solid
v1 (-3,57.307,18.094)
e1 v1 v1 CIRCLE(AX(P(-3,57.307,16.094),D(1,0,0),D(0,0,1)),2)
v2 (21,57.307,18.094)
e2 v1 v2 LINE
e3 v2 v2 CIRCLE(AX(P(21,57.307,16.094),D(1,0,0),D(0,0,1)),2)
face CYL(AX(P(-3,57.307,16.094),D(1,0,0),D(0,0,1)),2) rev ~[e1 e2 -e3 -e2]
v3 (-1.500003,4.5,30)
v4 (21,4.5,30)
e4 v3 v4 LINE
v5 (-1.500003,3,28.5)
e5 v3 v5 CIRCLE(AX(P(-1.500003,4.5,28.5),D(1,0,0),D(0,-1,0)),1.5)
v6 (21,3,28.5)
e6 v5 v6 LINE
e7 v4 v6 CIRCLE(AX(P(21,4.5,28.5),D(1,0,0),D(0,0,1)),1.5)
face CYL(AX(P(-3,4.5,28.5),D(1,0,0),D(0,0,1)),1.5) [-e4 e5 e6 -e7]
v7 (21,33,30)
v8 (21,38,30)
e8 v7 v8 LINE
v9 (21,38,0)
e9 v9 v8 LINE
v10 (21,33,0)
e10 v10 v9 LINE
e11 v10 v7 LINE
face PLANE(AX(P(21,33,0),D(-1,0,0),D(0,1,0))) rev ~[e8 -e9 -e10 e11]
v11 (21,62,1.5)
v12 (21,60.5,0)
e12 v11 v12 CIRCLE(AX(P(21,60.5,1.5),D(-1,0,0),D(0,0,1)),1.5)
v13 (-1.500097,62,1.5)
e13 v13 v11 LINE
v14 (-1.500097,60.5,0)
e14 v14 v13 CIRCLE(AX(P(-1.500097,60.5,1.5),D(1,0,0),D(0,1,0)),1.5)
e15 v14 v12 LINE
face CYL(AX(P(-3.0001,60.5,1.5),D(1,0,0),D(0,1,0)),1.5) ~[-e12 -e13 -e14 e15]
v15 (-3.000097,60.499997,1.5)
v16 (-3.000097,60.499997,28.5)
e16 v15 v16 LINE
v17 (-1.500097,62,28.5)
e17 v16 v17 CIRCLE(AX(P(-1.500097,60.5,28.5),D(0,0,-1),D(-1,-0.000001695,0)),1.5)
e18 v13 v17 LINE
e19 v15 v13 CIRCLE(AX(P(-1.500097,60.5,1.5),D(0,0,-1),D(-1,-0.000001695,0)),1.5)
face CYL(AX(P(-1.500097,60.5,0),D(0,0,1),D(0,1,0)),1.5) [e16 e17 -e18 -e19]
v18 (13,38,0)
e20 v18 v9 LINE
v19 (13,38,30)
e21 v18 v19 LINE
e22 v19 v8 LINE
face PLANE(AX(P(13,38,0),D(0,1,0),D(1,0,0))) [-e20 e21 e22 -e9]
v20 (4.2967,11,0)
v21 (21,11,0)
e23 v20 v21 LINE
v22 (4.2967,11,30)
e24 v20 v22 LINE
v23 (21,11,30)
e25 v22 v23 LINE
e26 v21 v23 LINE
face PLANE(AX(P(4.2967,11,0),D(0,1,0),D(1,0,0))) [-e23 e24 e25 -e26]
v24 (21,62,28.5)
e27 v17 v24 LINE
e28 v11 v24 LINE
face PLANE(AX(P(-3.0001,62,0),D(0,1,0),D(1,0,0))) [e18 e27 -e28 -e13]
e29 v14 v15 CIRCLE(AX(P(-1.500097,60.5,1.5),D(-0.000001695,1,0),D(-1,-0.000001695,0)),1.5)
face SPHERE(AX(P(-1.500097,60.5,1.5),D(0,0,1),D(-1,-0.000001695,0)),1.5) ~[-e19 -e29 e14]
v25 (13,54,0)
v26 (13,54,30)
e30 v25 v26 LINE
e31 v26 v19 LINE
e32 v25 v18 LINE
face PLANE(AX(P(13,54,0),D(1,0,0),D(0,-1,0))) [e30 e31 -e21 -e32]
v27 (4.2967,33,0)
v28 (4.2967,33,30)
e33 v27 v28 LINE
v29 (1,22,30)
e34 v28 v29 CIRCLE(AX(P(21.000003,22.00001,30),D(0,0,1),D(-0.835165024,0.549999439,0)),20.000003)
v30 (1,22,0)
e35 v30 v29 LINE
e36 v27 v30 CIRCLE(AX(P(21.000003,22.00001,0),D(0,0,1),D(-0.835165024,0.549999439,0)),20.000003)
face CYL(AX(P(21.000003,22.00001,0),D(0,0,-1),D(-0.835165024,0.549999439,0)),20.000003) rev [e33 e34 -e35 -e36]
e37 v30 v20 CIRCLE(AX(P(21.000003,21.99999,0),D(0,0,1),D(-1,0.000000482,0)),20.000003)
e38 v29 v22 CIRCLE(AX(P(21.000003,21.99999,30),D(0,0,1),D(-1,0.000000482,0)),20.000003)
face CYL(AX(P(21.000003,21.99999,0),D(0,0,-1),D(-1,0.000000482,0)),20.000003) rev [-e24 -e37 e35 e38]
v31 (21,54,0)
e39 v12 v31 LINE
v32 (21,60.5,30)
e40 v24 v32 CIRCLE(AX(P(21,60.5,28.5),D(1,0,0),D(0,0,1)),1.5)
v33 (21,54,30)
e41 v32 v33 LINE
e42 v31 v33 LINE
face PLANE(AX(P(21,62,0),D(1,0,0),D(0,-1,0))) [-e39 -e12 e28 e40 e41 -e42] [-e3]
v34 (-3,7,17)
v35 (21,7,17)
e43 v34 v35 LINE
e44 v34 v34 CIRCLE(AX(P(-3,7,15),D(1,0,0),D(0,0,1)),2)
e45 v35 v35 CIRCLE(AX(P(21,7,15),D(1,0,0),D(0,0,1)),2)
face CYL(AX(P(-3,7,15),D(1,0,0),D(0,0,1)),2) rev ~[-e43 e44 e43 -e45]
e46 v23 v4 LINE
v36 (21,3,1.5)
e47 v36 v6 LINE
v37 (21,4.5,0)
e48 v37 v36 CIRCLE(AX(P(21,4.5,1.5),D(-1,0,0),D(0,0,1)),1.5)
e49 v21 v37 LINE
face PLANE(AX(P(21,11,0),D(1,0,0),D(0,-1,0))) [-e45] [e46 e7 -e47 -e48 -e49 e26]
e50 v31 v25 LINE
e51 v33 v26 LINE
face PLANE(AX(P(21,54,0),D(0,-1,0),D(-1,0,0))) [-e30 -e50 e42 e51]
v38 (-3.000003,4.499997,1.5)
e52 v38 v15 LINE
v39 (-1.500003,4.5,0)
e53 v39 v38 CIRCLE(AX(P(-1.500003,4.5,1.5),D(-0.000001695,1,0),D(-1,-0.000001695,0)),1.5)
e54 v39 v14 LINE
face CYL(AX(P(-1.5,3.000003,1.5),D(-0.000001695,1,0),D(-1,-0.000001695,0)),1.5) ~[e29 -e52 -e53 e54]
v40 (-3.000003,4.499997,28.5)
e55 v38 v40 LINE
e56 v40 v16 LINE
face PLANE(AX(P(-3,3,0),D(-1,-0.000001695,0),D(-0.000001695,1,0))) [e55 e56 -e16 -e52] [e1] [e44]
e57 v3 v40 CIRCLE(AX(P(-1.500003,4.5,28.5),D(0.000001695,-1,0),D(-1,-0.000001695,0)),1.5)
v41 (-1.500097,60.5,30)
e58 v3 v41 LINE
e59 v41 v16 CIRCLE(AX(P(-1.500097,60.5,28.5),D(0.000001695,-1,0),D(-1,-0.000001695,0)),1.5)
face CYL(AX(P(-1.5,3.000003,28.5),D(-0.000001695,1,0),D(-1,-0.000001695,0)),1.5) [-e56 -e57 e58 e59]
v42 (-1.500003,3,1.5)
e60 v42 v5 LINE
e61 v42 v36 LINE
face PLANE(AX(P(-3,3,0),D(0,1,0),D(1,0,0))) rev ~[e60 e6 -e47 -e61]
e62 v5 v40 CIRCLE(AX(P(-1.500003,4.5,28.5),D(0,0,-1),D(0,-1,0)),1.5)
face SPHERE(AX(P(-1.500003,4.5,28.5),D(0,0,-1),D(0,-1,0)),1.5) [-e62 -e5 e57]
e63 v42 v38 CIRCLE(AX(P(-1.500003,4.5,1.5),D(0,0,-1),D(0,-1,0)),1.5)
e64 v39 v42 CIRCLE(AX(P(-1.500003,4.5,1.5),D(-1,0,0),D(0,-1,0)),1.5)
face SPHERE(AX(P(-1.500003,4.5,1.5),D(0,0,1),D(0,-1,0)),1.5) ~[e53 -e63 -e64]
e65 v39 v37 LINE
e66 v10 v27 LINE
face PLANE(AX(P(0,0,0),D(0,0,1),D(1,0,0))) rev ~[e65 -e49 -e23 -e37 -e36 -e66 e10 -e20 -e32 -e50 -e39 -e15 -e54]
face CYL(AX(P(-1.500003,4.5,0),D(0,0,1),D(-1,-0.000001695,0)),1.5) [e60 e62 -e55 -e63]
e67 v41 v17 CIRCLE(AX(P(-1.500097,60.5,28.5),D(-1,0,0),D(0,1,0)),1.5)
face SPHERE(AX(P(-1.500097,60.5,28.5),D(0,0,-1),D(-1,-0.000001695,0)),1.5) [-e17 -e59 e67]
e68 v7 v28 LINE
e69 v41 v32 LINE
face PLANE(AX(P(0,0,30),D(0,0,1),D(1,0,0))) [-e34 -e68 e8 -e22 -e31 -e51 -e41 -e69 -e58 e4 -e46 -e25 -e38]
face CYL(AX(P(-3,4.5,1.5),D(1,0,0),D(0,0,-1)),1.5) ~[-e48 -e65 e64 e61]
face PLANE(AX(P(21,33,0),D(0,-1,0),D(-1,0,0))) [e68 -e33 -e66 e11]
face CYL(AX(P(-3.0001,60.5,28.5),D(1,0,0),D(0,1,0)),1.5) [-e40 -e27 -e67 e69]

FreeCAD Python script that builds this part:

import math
import FreeCAD as App
import Part
import Sketcher
from FreeCAD import Vector
Q = App.Units.Quantity


def edges_at(feature, points):
    """Names of the edges that pass closest to the given points."""
    edges = feature.Shape.Edges
    near = lambda p: min(range(len(edges)), key=lambda i: edges[i].distToShape(Part.Vertex(*p))[0])
    return sorted({f"Edge{near(p) + 1}" for p in points})

doc = App.newDocument("Part")
body = doc.addObject("PartDesign::Body", "Body")

# Sketch on XY plane
sketch1 = body.newObject("Sketcher::SketchObject", "Sketch")
sketch1.AttachmentSupport = (doc.getObject("XY_Plane"), [""])
sketch1.MapMode = "FlatFace"
sketch1.addGeometry(Part.LineSegment(Vector(21, 62, 0), Vector(-3, 62, 0)), False)
sketch1.addGeometry(Part.LineSegment(Vector(-3, 62, 0), Vector(-3, 3, 0)), False)
sketch1.addGeometry(Part.LineSegment(Vector(-3, 3, 0), Vector(21, 3, 0)), False)
sketch1.addGeometry(Part.LineSegment(Vector(21, 3, 0), Vector(21, 11, 0)), False)
sketch1.addGeometry(Part.LineSegment(Vector(21, 11, 0), Vector(4, 11, 0)), False)
sketch1.addGeometry(Part.ArcOfCircle(Part.Circle(Vector(21, 22, 0), Vector(0, 0, 1), 20), math.radians(180), math.radians(213)), False)
sketch1.addGeometry(Part.ArcOfCircle(Part.Circle(Vector(21, 22, 0), Vector(0, 0, 1), 20), math.radians(147), math.radians(180)), False)
sketch1.addGeometry(Part.LineSegment(Vector(4, 33, 0), Vector(21, 33, 0)), False)
sketch1.addGeometry(Part.LineSegment(Vector(21, 33, 0), Vector(21, 38, 0)), False)
sketch1.addGeometry(Part.LineSegment(Vector(21, 38, 0), Vector(13, 38, 0)), False)
sketch1.addGeometry(Part.LineSegment(Vector(13, 38, 0), Vector(13, 54, 0)), False)
sketch1.addGeometry(Part.LineSegment(Vector(13, 54, 0), Vector(21, 54, 0)), False)
sketch1.addGeometry(Part.LineSegment(Vector(21, 54, 0), Vector(21, 62, 0)), False)
sketch1.addConstraint(Sketcher.Constraint("Coincident", 0, 2, 1, 1))
sketch1.addConstraint(Sketcher.Constraint("Coincident", 1, 2, 2, 1))
sketch1.addConstraint(Sketcher.Constraint("Coincident", 2, 2, 3, 1))
sketch1.addConstraint(Sketcher.Constraint("Coincident", 3, 2, 4, 1))
sketch1.addConstraint(Sketcher.Constraint("Coincident", 4, 2, 5, 2))
sketch1.addConstraint(Sketcher.Constraint("Tangent", 5, 1, 6, 2))
sketch1.addConstraint(Sketcher.Constraint("Coincident", 6, 1, 7, 1))
sketch1.addConstraint(Sketcher.Constraint("Coincident", 7, 2, 8, 1))
sketch1.addConstraint(Sketcher.Constraint("Coincident", 8, 2, 9, 1))
sketch1.addConstraint(Sketcher.Constraint("Coincident", 9, 2, 10, 1))
sketch1.addConstraint(Sketcher.Constraint("Coincident", 10, 2, 11, 1))
sketch1.addConstraint(Sketcher.Constraint("Coincident", 11, 2, 12, 1))
sketch1.addConstraint(Sketcher.Constraint("Coincident", 12, 2, 0, 1))
sketch1.addConstraint(Sketcher.Constraint("Horizontal", 0))
sketch1.addConstraint(Sketcher.Constraint("Vertical", 1))
sketch1.addConstraint(Sketcher.Constraint("Horizontal", 2))
sketch1.addConstraint(Sketcher.Constraint("Vertical", 3))
sketch1.addConstraint(Sketcher.Constraint("Horizontal", 4))
sketch1.addConstraint(Sketcher.Constraint("Horizontal", 7))
sketch1.addConstraint(Sketcher.Constraint("Vertical", 8))
sketch1.addConstraint(Sketcher.Constraint("Horizontal", 9))
sketch1.addConstraint(Sketcher.Constraint("Vertical", 10))
sketch1.addConstraint(Sketcher.Constraint("Horizontal", 11))
sketch1.addConstraint(Sketcher.Constraint("Vertical", 12))
sketch1.addConstraint(Sketcher.Constraint("Equal", 5, 6))
sketch1.addConstraint(Sketcher.Constraint("Horizontal", 6, 3, 5, 1))
sketch1.addConstraint(Sketcher.Constraint("Vertical", 6, 3, 2, 2))
sketch1.addConstraint(Sketcher.Constraint("Vertical", 4, 2, 6, 1))
sketch1.addConstraint(Sketcher.Constraint("Vertical", 3, 2, 7, 2))
sketch1.addConstraint(Sketcher.Constraint("Vertical", 8, 2, 11, 2))
sketch1.addConstraint(Sketcher.Constraint("Equal", 11, 3))
sketch1.addConstraint(Sketcher.Constraint("Equal", 3, 12))
sketch1.addConstraint(Sketcher.Constraint("DistanceX", 0, 2, 0, 1, Q("24 mm")))
sketch1.addConstraint(Sketcher.Constraint("DistanceX", 9, 2, 9, 1, Q("8 mm")))
sketch1.addConstraint(Sketcher.Constraint("DistanceY", 8, 1, 8, 2, Q("5 mm")))
sketch1.addConstraint(Sketcher.Constraint("DistanceY", 10, 1, 10, 2, Q("16 mm")))
sketch1.addConstraint(Sketcher.Constraint("Radius", 5, Q("20 mm")))
sketch1.addConstraint(Sketcher.Constraint("DistanceY", 5, 3, 8, 2, Q("16 mm")))
sketch1.addConstraint(Sketcher.Constraint("DistanceX", -1, 1, 5, 3, Q("21 mm")))
sketch1.addConstraint(Sketcher.Constraint("DistanceY", -1, 1, 5, 3, Q("22 mm")))
pad1 = body.newObject("PartDesign::Pad", "Pad")
pad1.Profile = sketch1
pad1.Length = 30

# Sketch on YZ plane
sketch2 = body.newObject("Sketcher::SketchObject", "Sketch001")
sketch2.AttachmentSupport = (doc.getObject("YZ_Plane"), [""])
sketch2.MapMode = "FlatFace"
sketch2.AttachmentOffset = App.Placement(Vector(0, 0, -3), App.Rotation())
sketch2.addGeometry(Part.Circle(Vector(7, 15, 0), Vector(0, 0, 1), 2), False)
sketch2.addConstraint(Sketcher.Constraint("Diameter", 0, Q("4 mm")))
sketch2.addConstraint(Sketcher.Constraint("DistanceX", -1, 1, 0, 3, Q("7 mm")))
sketch2.addConstraint(Sketcher.Constraint("DistanceY", -1, 1, 0, 3, Q("15 mm")))
doc.recompute()
hole = body.newObject("PartDesign::Hole", "Hole")
hole.Profile = sketch2
hole.ThreadType = "None"
hole.Diameter = 4
hole.DepthType = "Dimension"
hole.Depth = 25
hole.DrillPoint = "Flat"
hole.Reversed = True

# Sketch on YZ plane
sketch3 = body.newObject("Sketcher::SketchObject", "Sketch002")
sketch3.AttachmentSupport = (doc.getObject("YZ_Plane"), [""])
sketch3.MapMode = "FlatFace"
sketch3.AttachmentOffset = App.Placement(Vector(0, 0, -3), App.Rotation())
sketch3.addGeometry(Part.Circle(Vector(57.3, 16.1, 0), Vector(0, 0, 1), 2), False)
sketch3.addConstraint(Sketcher.Constraint("Diameter", 0, Q("4 mm")))
sketch3.addConstraint(Sketcher.Constraint("DistanceX", -1, 1, 0, 3, Q("57.307 mm")))
sketch3.addConstraint(Sketcher.Constraint("DistanceY", -1, 1, 0, 3, Q("16.094 mm")))
doc.recompute()
hole2 = body.newObject("PartDesign::Hole", "Hole001")
hole2.Profile = sketch3
hole2.ThreadType = "None"
hole2.Diameter = 4
hole2.DepthType = "Dimension"
hole2.Depth = 25
hole2.DrillPoint = "Flat"
hole2.Reversed = True
doc.recompute()

fillet = body.newObject("PartDesign::Fillet", "Fillet")
fillet.Base = (hole2, edges_at(hole2, [
    (9, 62, 30),
    (-3, 62, 15),
    (-3, 32.5, 30),
    (-3, 32.5, 0),
    (-3, 3, 15),
    (9, 3, 0),
    (9, 3, 30),
    (9, 62, 0),
]))
fillet.Radius = 1.5

doc.recompute()
